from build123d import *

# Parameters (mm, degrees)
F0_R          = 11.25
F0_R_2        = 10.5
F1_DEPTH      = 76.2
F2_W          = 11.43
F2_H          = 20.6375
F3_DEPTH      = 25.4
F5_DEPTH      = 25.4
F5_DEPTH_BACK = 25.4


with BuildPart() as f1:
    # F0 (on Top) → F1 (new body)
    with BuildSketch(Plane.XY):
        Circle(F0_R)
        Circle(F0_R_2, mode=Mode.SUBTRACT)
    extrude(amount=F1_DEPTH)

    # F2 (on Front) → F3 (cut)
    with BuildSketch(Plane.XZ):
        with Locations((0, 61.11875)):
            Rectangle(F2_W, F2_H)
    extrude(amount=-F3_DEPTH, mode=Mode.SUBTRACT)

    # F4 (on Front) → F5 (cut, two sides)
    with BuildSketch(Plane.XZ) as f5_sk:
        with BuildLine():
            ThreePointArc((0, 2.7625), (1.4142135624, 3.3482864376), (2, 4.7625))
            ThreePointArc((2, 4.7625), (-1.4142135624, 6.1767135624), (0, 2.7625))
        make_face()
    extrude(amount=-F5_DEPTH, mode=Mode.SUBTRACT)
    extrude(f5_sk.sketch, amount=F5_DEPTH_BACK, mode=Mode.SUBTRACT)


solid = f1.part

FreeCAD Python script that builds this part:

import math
import FreeCAD as App
import Part
import Sketcher
from FreeCAD import Vector
Q = App.Units.Quantity


def add_polygon(sketch, points):
    """Adds a closed chain of lines whose ends are joined by coincident constraints."""
    first, n = sketch.GeometryCount, len(points)
    for a, b in zip(points, points[1:] + points[:1]):
        sketch.addGeometry(Part.LineSegment(App.Vector(*a, 0), App.Vector(*b, 0)), False)
    for i in range(n):
        sketch.addConstraint(Sketcher.Constraint("Coincident", first + i, 2, first + (i + 1) % n, 1))

doc = App.newDocument("Part")
params = doc.addObject("Spreadsheet::Sheet", "Params")
for row, (alias, value) in enumerate([
    ("pad1_length", "3 in"),
    ("sketch2_width", "0.45 in"),
    ("sketch2_height", "0.8125 in"),
    ("pocket1_length", "1 in"),
], start=1):
    params.set(f"A{row}", alias)
    params.set(f"B{row}", "=" + value)
    params.setAlias(f"B{row}", alias)

body = doc.addObject("PartDesign::Body", "Body")

# Sketch on XY plane
sketch1 = doc.addObject("Sketcher::SketchObject", "Sketch")
body.addObject(sketch1)
sketch1.AttachmentSupport = (doc.XY_Plane, [""])
sketch1.MapMode = "FlatFace"
sketch1.addGeometry([
    Part.Circle(Vector(0, 0, 0), Vector(0, 0, 1), 11),
    Part.Circle(Vector(0, 0, 0), Vector(0, 0, 1), 10),
], False)
sketch1.addConstraint([
    Sketcher.Constraint("Coincident", 0, 3, -1, 1),
    Sketcher.Constraint("Coincident", 1, 3, -1, 1),
    Sketcher.Constraint("Diameter", 0, Q("22.5 mm")),
    Sketcher.Constraint("Diameter", 1, Q("21 mm")),
])
pad1 = doc.addObject("PartDesign::Pad", "Pad")
body.addObject(pad1)
pad1.Profile = sketch1
pad1.setExpression("Length", "Params.pad1_length")

# Sketch on XZ plane
sketch2 = doc.addObject("Sketcher::SketchObject", "Sketch001")
body.addObject(sketch2)
sketch2.AttachmentSupport = (doc.XZ_Plane, [""])
sketch2.MapMode = "FlatFace"
add_polygon(sketch2, [(-6, 71), (-6, 51), (6, 51), (6, 71)])  # lines 0-3
sketch2.addConstraint([
    Sketcher.Constraint("Vertical", 0),
    Sketcher.Constraint("Horizontal", 1),
    Sketcher.Constraint("Vertical", 2),
    Sketcher.Constraint("Horizontal", 3),
    Sketcher.Constraint("DistanceY", -1, 1, 0, 2, Q("2 in")),
    Sketcher.Constraint("DistanceX", 1, 1, 1, 2, Q("0.45 in")),
    Sketcher.Constraint("DistanceY", 0, 2, 0, 1, Q("0.8125 in")),
    Sketcher.Constraint("DistanceX", 0, 2, -1, 1, Q("0.225 in")),
])
sketch2.setExpression("Constraints[9]", "Params.sketch2_width")
sketch2.setExpression("Constraints[10]", "Params.sketch2_height")
pocket1 = doc.addObject("PartDesign::Pocket", "Pocket")
body.addObject(pocket1)
pocket1.Profile = sketch2
pocket1.setExpression("Length", "Params.pocket1_length")

# Sketch on XZ plane
sketch3 = doc.addObject("Sketcher::SketchObject", "Sketch002")
body.addObject(sketch3)
sketch3.AttachmentSupport = (doc.XZ_Plane, [""])
sketch3.MapMode = "FlatFace"
sketch3.addGeometry([
    Part.ArcOfCircle(Part.Circle(Vector(0, 4.8, 0), Vector(0, 0, 1), 2), math.radians(-90), math.radians(0)),
    Part.ArcOfCircle(Part.Circle(Vector(0, 4.8, 0), Vector(0, 0, 1), 2), math.radians(0), math.radians(270)),
], False)
sketch3.addConstraint([
    Sketcher.Constraint("Tangent", 0, 1, 1, 2),
    Sketcher.Constraint("Coincident", 1, 1, 0, 2),
    Sketcher.Constraint("PointOnObject", 0, 3, -2),
    Sketcher.Constraint("PointOnObject", 0, 1, -2),
    Sketcher.Constraint("Horizontal", 0, 3, 1, 1),
    Sketcher.Constraint("Radius", 0, Q("2 mm")),
    Sketcher.Constraint("DistanceY", -1, 1, 0, 3, Q("0.1875 in")),
])
pocket2 = doc.addObject("PartDesign::Pocket", "Pocket001")
body.addObject(pocket2)
pocket2.Profile = sketch3
pocket2.Type = "ThroughAll"
pocket2.Midplane = True

doc.recompute()
